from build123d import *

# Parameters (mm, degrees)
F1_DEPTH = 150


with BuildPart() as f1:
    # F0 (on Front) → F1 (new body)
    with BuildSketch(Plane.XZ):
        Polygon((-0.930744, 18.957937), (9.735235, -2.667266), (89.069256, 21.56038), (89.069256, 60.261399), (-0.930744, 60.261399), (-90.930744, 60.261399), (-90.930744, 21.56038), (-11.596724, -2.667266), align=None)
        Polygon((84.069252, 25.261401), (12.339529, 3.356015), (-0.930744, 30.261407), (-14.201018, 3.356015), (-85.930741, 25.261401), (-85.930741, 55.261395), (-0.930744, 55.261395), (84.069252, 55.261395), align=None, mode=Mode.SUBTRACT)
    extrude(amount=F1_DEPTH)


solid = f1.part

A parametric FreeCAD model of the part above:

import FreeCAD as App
import Part
import Sketcher

V = App.Vector
Q = App.Units.Quantity

doc = App.newDocument("Part")
params = doc.addObject("Spreadsheet::Sheet", "Params")
for row, (alias, value) in enumerate([
    ("sketch1_width", "180 mm"),
    ("pad1_length", "150 mm"),
], start=1):
    params.set(f"A{row}", alias)
    params.set(f"B{row}", "=" + value)
    params.setAlias(f"B{row}", alias)

body = doc.addObject("PartDesign::Body", "Body")

sketch1 = doc.addObject("Sketcher::SketchObject", "Sketch")
body.addObject(sketch1)
sketch1.AttachmentSupport = (doc.XZ_Plane, [""])
sketch1.MapMode = "FlatFace"
sketch1.addGeometry(Part.LineSegment(V(-0.930744, 18.957937, 0), V(9.735235, -2.667266, 0)), False)
sketch1.addGeometry(Part.LineSegment(V(9.735235, -2.667266, 0), V(89.069256, 21.56038, 0)), False)
sketch1.addGeometry(Part.LineSegment(V(89.069256, 21.56038, 0), V(89.069256, 60.261399, 0)), False)
sketch1.addGeometry(Part.LineSegment(V(89.069256, 60.261399, 0), V(-90.930744, 60.261399, 0)), False)
sketch1.addGeometry(Part.LineSegment(V(-90.930744, 60.261399, 0), V(-90.930744, 21.56038, 0)), False)
sketch1.addGeometry(Part.LineSegment(V(-90.930744, 21.56038, 0), V(-11.596724, -2.667266, 0)), False)
sketch1.addGeometry(Part.LineSegment(V(-11.596724, -2.667266, 0), V(-0.930744, 18.957937, 0)), False)
sketch1.addGeometry(Part.LineSegment(V(84.069252, 55.261395, 0), V(84.069252, 25.261401, 0)), False)
sketch1.addGeometry(Part.LineSegment(V(84.069252, 25.261401, 0), V(12.339529, 3.356015, 0)), False)
sketch1.addGeometry(Part.LineSegment(V(12.339529, 3.356015, 0), V(-0.930744, 30.261407, 0)), False)
sketch1.addGeometry(Part.LineSegment(V(-0.930744, 30.261407, 0), V(-14.201018, 3.356015, 0)), False)
sketch1.addGeometry(Part.LineSegment(V(-14.201018, 3.356015, 0), V(-85.930741, 25.261401, 0)), False)
sketch1.addGeometry(Part.LineSegment(V(-85.930741, 25.261401, 0), V(-85.930741, 55.261395, 0)), False)
sketch1.addGeometry(Part.LineSegment(V(-85.930741, 55.261395, 0), V(84.069252, 55.261395, 0)), False)
sketch1.addConstraint(Sketcher.Constraint("Coincident", 0, 2, 1, 1))
sketch1.addConstraint(Sketcher.Constraint("Coincident", 1, 2, 2, 1))
sketch1.addConstraint(Sketcher.Constraint("Coincident", 2, 2, 3, 1))
sketch1.addConstraint(Sketcher.Constraint("Coincident", 3, 2, 4, 1))
sketch1.addConstraint(Sketcher.Constraint("Coincident", 4, 2, 5, 1))
sketch1.addConstraint(Sketcher.Constraint("Coincident", 5, 2, 6, 1))
sketch1.addConstraint(Sketcher.Constraint("Coincident", 6, 2, 0, 1))
sketch1.addConstraint(Sketcher.Constraint("Coincident", 7, 2, 8, 1))
sketch1.addConstraint(Sketcher.Constraint("Coincident", 8, 2, 9, 1))
sketch1.addConstraint(Sketcher.Constraint("Coincident", 9, 2, 10, 1))
sketch1.addConstraint(Sketcher.Constraint("Coincident", 10, 2, 11, 1))
sketch1.addConstraint(Sketcher.Constraint("Coincident", 11, 2, 12, 1))
sketch1.addConstraint(Sketcher.Constraint("Coincident", 12, 2, 13, 1))
sketch1.addConstraint(Sketcher.Constraint("Coincident", 13, 2, 7, 1))
sketch1.addConstraint(Sketcher.Constraint("Vertical", 2))
sketch1.addConstraint(Sketcher.Constraint("Horizontal", 3))
sketch1.addConstraint(Sketcher.Constraint("Vertical", 4))
sketch1.addConstraint(Sketcher.Constraint("Vertical", 7))
sketch1.addConstraint(Sketcher.Constraint("Vertical", 12))
sketch1.addConstraint(Sketcher.Constraint("Horizontal", 13))
sketch1.addConstraint(Sketcher.Constraint("Parallel", 1, 8))
sketch1.addConstraint(Sketcher.Constraint("Parallel", 0, 9))
sketch1.addConstraint(Sketcher.Constraint("Parallel", 6, 10))
sketch1.addConstraint(Sketcher.Constraint("Parallel", 5, 11))
sketch1.addConstraint(Sketcher.Constraint("Horizontal", 1, 2, 4, 2))
sketch1.addConstraint(Sketcher.Constraint("Horizontal", 0, 2, 5, 2))
sketch1.addConstraint(Sketcher.Constraint("Horizontal", 8, 2, 10, 2))
sketch1.addConstraint(Sketcher.Constraint("Horizontal", 7, 2, 11, 2))
sketch1.addConstraint(Sketcher.Constraint("Vertical", 6, 2, 9, 2))
sketch1.addConstraint(Sketcher.Constraint("Equal", 1, 5))
sketch1.addConstraint(Sketcher.Constraint("Equal", 0, 6))
sketch1.addConstraint(Sketcher.Constraint("DistanceX", 3, 2, 3, 1, Q("180 mm")))
sketch1.addConstraint(Sketcher.Constraint("DistanceY", 2, 1, 2, 2, Q("38.701019 mm")))
sketch1.addConstraint(Sketcher.Constraint("DistanceY", -1, 1, 2, 2, Q("60.261399 mm")))
sketch1.addConstraint(Sketcher.Constraint("DistanceY", -1, 1, 7, 2, Q("25.261401 mm")))
sketch1.addConstraint(Sketcher.Constraint("DistanceX", 13, 1, 13, 2, Q("169.999993 mm")))
sketch1.addConstraint(Sketcher.Constraint("DistanceY", 7, 2, 7, 1, Q("29.999994 mm")))
sketch1.addConstraint(Sketcher.Constraint("DistanceX", -1, 1, 8, 2, Q("12.339529 mm")))
sketch1.addConstraint(Sketcher.Constraint("DistanceX", 11, 2, -1, 1, Q("85.930741 mm")))
sketch1.addConstraint(Sketcher.Constraint("DistanceX", 0, 2, 1, 2, Q("79.334021 mm")))
sketch1.addConstraint(Sketcher.Constraint("DistanceY", 6, 2, 2, 2, Q("41.303462 mm")))
sketch1.addConstraint(Sketcher.Constraint("DistanceY", 0, 2, 8, 2, Q("6.023281 mm")))
sketch1.setExpression("Constraints[31]", "Params.sketch1_width")
pad1 = doc.addObject("PartDesign::Pad", "Pad")
body.addObject(pad1)
pad1.Profile = sketch1
pad1.setExpression("Length", "Params.pad1_length")

doc.recompute()
